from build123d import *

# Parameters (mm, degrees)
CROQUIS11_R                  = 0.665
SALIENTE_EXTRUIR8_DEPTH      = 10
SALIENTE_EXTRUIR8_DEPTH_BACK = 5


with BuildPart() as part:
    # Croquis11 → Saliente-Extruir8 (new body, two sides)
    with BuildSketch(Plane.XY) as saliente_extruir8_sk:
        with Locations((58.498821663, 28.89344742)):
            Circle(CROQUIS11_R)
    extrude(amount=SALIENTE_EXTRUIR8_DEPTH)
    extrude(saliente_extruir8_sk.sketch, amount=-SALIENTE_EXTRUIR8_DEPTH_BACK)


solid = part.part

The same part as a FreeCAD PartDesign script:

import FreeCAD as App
import Part
import Sketcher

doc = App.newDocument("Part")
body = doc.addObject("PartDesign::Body", "Body")

# Sketch on XY plane
sketch1 = doc.addObject("Sketcher::SketchObject", "Sketch")
body.addObject(sketch1)
sketch1.AttachmentSupport = (doc.XY_Plane, [""])
sketch1.MapMode = "FlatFace"
sketch1.addGeometry(Part.Circle(App.Vector(58.498822, 28.893447, 0), App.Vector(0, 0, 1), 0.665), False)
sketch1.addConstraint([
    Sketcher.Constraint("Diameter", 0, 1.33),
    Sketcher.Constraint("DistanceX", -1, 1, 0, 3, 58.498822),
    Sketcher.Constraint("DistanceY", -1, 1, 0, 3, 28.893447),
])
pad1 = doc.addObject("PartDesign::Pad", "Pad")
body.addObject(pad1)
pad1.Profile = sketch1
pad1.Type = "TwoLengths"
pad1.Length = 10
pad1.Length2 = 5

doc.recompute()
